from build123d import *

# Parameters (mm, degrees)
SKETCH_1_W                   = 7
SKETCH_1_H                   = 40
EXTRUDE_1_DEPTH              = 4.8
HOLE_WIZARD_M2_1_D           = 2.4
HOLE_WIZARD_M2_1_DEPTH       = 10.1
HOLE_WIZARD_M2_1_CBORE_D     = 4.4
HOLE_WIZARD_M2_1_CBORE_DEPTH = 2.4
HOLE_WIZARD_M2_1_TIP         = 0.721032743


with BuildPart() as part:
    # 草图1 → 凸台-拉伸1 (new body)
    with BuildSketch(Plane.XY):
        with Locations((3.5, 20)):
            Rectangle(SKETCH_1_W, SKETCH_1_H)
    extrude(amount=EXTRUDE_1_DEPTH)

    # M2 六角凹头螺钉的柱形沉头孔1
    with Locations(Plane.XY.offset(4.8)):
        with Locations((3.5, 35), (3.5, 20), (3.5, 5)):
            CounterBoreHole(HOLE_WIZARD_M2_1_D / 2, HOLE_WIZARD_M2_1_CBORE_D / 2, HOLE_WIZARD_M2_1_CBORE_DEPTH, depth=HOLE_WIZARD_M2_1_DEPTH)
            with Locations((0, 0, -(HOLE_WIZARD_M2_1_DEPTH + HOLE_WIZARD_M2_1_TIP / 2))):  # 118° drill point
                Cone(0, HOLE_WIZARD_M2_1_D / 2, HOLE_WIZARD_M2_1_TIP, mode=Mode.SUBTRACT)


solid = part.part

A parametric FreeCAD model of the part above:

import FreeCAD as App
import Part
import Sketcher
from FreeCAD import Vector
Q = App.Units.Quantity


def add_polygon(sketch, points):
    """Adds a closed chain of lines whose ends are joined by coincident constraints."""
    first, n = sketch.GeometryCount, len(points)
    for a, b in zip(points, points[1:] + points[:1]):
        sketch.addGeometry(Part.LineSegment(App.Vector(*a, 0), App.Vector(*b, 0)), False)
    for i in range(n):
        sketch.addConstraint(Sketcher.Constraint("Coincident", first + i, 2, first + (i + 1) % n, 1))

doc = App.newDocument("Part")
body = doc.addObject("PartDesign::Body", "Body")

sketch1 = doc.addObject("Sketcher::SketchObject", "Sketch")
body.addObject(sketch1)
sketch1.AttachmentSupport = (doc.XY_Plane, [""])
sketch1.MapMode = "FlatFace"
add_polygon(sketch1, [(0, 40), (0, 0), (7, 0), (7, 40)])
sketch1.addConstraint([
    Sketcher.Constraint("Vertical", 0),
    Sketcher.Constraint("Horizontal", 1),
    Sketcher.Constraint("Vertical", 2),
    Sketcher.Constraint("Horizontal", 3),
    Sketcher.Constraint("Coincident", 0, 2, -1, 1),
    Sketcher.Constraint("DistanceX", 1, 1, 1, 2, Q("7 mm")),
    Sketcher.Constraint("DistanceY", 0, 2, 0, 1, Q("40 mm")),
])
pad1 = doc.addObject("PartDesign::Pad", "Pad")
body.addObject(pad1)
pad1.Profile = sketch1
pad1.Length = 4.8

sketch2 = doc.addObject("Sketcher::SketchObject", "Sketch001")
body.addObject(sketch2)
sketch2.AttachmentSupport = (doc.XY_Plane, [""])
sketch2.MapMode = "FlatFace"
sketch2.AttachmentOffset = App.Placement(Vector(0, 0, 4.8), App.Rotation())
sketch2.addGeometry([
    Part.Circle(Vector(3.5, 35, 0), Vector(0, 0, 1), 1.2),
    Part.Circle(Vector(3.5, 20, 0), Vector(0, 0, 1), 1.2),
    Part.Circle(Vector(3.5, 5, 0), Vector(0, 0, 1), 1.2),
], False)
sketch2.addConstraint([
    Sketcher.Constraint("Equal", 0, 1),
    Sketcher.Constraint("Equal", 1, 2),
    Sketcher.Constraint("Vertical", 0, 3, 1, 3),
    Sketcher.Constraint("Vertical", 1, 3, 2, 3),
    Sketcher.Constraint("Diameter", 0, Q("2.4 mm")),
    Sketcher.Constraint("DistanceY", -1, 1, 0, 3, Q("35 mm")),
    Sketcher.Constraint("DistanceY", -1, 1, 1, 3, Q("20 mm")),
    Sketcher.Constraint("DistanceY", -1, 1, 2, 3, Q("5 mm")),
    Sketcher.Constraint("DistanceX", -1, 1, 0, 3, Q("3.5 mm")),
])
doc.recompute()
hole = doc.addObject("PartDesign::Hole", "Hole")
body.addObject(hole)
hole.Profile = sketch2
hole.ThreadType = "None"
hole.Diameter = 2.4
hole.DepthType = "Dimension"
hole.Depth = 10.1
hole.DrillPoint = "Angled"
hole.DrillPointAngle = 118
hole.HoleCutType = "Counterbore"
hole.HoleCutDiameter = 4.4
hole.HoleCutDepth = 2.4

doc.recompute()
